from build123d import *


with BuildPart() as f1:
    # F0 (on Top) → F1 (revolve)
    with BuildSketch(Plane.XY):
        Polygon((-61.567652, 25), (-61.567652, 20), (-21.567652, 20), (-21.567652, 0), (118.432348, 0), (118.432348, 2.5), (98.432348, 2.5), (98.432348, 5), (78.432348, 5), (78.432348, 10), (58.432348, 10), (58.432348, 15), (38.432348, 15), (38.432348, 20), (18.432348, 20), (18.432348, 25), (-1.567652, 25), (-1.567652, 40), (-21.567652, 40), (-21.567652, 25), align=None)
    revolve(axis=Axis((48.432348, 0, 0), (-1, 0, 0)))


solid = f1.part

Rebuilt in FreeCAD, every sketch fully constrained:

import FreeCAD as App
import Part
import Sketcher
from FreeCAD import Vector
Q = App.Units.Quantity


def add_polygon(sketch, points):
    """Adds a closed chain of lines whose ends are joined by coincident constraints."""
    first, n = sketch.GeometryCount, len(points)
    for a, b in zip(points, points[1:] + points[:1]):
        sketch.addGeometry(Part.LineSegment(App.Vector(*a, 0), App.Vector(*b, 0)), False)
    for i in range(n):
        sketch.addConstraint(Sketcher.Constraint("Coincident", first + i, 2, first + (i + 1) % n, 1))

doc = App.newDocument("Part")
params = doc.addObject("Spreadsheet::Sheet", "Params")
for row, (alias, value) in enumerate([
    ("sketch1_width", "40 mm"),
    ("sketch1_width2", "140 mm"),
    ("sketch1_height", "5 mm"),
    ("sketch1_height2", "15 mm"),
    ("revolution_angle", "360 deg"),
], start=1):
    params.set(f"A{row}", alias)
    params.set(f"B{row}", "=" + value)
    params.setAlias(f"B{row}", alias)

body = doc.addObject("PartDesign::Body", "Body")

sketch1 = body.newObject("Sketcher::SketchObject", "Sketch")
sketch1.AttachmentSupport = (doc.getObject("XY_Plane"), [""])
sketch1.MapMode = "FlatFace"
add_polygon(sketch1, [(-61.6, 25), (-61.6, 20), (-21.6, 20), (-21.6, 0), (118.4, 0), (118.4, 2.5), (98.4, 2.5), (98.4, 5), (78.4, 5), (78.4, 10), (58.4, 10), (58.4, 15), (38.4, 15), (38.4, 20), (18.4, 20), (18.4, 25), (-1.6, 25), (-1.6, 40), (-21.6, 40), (-21.6, 25)])
sketch1.addConstraint([
    Sketcher.Constraint("Vertical", 0),
    Sketcher.Constraint("Horizontal", 1),
    Sketcher.Constraint("Vertical", 2),
    Sketcher.Constraint("Horizontal", 3),
    Sketcher.Constraint("Vertical", 4),
    Sketcher.Constraint("Horizontal", 5),
    Sketcher.Constraint("Vertical", 6),
    Sketcher.Constraint("Horizontal", 7),
    Sketcher.Constraint("Vertical", 8),
    Sketcher.Constraint("Horizontal", 9),
    Sketcher.Constraint("Vertical", 10),
    Sketcher.Constraint("Horizontal", 11),
    Sketcher.Constraint("Vertical", 12),
    Sketcher.Constraint("Horizontal", 13),
    Sketcher.Constraint("Vertical", 14),
    Sketcher.Constraint("Horizontal", 15),
    Sketcher.Constraint("Vertical", 16),
    Sketcher.Constraint("Horizontal", 17),
    Sketcher.Constraint("Vertical", 18),
    Sketcher.Constraint("Horizontal", 19),
    Sketcher.Constraint("PointOnObject", 2, 2, -1),
    Sketcher.Constraint("Horizontal", 1, 2, 12, 2),
    Sketcher.Constraint("Horizontal", 15, 2, 18, 2),
    Sketcher.Constraint("Vertical", 2, 2, 17, 2),
    Sketcher.Constraint("Equal", 5, 7),
    Sketcher.Constraint("Equal", 7, 9),
    Sketcher.Constraint("Equal", 9, 11),
    Sketcher.Constraint("Equal", 11, 13),
    Sketcher.Constraint("Equal", 13, 15),
    Sketcher.Constraint("Equal", 15, 17),
    Sketcher.Constraint("Equal", 17, 2),
    Sketcher.Constraint("Equal", 4, 6),
    Sketcher.Constraint("Equal", 0, 8),
    Sketcher.Constraint("Equal", 8, 10),
    Sketcher.Constraint("Equal", 10, 12),
    Sketcher.Constraint("DistanceX", 1, 1, 1, 2, Q("40 mm")),
    Sketcher.Constraint("DistanceX", 3, 1, 3, 2, Q("140 mm")),
    Sketcher.Constraint("DistanceY", 0, 2, 0, 1, Q("5 mm")),
    Sketcher.Constraint("DistanceY", 16, 1, 16, 2, Q("15 mm")),
    Sketcher.Constraint("DistanceX", 1, 2, -1, 1, Q("21.567652 mm")),
])
sketch1.setExpression("Constraints[55]", "Params.sketch1_width")
sketch1.setExpression("Constraints[56]", "Params.sketch1_width2")
sketch1.setExpression("Constraints[57]", "Params.sketch1_height")
sketch1.setExpression("Constraints[58]", "Params.sketch1_height2")
revolution = body.newObject("PartDesign::Revolution", "Revolution")
revolution.Profile = sketch1
revolution.ReferenceAxis = (sketch1, ["H_Axis"])
revolution.setExpression("Angle", "Params.revolution_angle")

doc.recompute()
